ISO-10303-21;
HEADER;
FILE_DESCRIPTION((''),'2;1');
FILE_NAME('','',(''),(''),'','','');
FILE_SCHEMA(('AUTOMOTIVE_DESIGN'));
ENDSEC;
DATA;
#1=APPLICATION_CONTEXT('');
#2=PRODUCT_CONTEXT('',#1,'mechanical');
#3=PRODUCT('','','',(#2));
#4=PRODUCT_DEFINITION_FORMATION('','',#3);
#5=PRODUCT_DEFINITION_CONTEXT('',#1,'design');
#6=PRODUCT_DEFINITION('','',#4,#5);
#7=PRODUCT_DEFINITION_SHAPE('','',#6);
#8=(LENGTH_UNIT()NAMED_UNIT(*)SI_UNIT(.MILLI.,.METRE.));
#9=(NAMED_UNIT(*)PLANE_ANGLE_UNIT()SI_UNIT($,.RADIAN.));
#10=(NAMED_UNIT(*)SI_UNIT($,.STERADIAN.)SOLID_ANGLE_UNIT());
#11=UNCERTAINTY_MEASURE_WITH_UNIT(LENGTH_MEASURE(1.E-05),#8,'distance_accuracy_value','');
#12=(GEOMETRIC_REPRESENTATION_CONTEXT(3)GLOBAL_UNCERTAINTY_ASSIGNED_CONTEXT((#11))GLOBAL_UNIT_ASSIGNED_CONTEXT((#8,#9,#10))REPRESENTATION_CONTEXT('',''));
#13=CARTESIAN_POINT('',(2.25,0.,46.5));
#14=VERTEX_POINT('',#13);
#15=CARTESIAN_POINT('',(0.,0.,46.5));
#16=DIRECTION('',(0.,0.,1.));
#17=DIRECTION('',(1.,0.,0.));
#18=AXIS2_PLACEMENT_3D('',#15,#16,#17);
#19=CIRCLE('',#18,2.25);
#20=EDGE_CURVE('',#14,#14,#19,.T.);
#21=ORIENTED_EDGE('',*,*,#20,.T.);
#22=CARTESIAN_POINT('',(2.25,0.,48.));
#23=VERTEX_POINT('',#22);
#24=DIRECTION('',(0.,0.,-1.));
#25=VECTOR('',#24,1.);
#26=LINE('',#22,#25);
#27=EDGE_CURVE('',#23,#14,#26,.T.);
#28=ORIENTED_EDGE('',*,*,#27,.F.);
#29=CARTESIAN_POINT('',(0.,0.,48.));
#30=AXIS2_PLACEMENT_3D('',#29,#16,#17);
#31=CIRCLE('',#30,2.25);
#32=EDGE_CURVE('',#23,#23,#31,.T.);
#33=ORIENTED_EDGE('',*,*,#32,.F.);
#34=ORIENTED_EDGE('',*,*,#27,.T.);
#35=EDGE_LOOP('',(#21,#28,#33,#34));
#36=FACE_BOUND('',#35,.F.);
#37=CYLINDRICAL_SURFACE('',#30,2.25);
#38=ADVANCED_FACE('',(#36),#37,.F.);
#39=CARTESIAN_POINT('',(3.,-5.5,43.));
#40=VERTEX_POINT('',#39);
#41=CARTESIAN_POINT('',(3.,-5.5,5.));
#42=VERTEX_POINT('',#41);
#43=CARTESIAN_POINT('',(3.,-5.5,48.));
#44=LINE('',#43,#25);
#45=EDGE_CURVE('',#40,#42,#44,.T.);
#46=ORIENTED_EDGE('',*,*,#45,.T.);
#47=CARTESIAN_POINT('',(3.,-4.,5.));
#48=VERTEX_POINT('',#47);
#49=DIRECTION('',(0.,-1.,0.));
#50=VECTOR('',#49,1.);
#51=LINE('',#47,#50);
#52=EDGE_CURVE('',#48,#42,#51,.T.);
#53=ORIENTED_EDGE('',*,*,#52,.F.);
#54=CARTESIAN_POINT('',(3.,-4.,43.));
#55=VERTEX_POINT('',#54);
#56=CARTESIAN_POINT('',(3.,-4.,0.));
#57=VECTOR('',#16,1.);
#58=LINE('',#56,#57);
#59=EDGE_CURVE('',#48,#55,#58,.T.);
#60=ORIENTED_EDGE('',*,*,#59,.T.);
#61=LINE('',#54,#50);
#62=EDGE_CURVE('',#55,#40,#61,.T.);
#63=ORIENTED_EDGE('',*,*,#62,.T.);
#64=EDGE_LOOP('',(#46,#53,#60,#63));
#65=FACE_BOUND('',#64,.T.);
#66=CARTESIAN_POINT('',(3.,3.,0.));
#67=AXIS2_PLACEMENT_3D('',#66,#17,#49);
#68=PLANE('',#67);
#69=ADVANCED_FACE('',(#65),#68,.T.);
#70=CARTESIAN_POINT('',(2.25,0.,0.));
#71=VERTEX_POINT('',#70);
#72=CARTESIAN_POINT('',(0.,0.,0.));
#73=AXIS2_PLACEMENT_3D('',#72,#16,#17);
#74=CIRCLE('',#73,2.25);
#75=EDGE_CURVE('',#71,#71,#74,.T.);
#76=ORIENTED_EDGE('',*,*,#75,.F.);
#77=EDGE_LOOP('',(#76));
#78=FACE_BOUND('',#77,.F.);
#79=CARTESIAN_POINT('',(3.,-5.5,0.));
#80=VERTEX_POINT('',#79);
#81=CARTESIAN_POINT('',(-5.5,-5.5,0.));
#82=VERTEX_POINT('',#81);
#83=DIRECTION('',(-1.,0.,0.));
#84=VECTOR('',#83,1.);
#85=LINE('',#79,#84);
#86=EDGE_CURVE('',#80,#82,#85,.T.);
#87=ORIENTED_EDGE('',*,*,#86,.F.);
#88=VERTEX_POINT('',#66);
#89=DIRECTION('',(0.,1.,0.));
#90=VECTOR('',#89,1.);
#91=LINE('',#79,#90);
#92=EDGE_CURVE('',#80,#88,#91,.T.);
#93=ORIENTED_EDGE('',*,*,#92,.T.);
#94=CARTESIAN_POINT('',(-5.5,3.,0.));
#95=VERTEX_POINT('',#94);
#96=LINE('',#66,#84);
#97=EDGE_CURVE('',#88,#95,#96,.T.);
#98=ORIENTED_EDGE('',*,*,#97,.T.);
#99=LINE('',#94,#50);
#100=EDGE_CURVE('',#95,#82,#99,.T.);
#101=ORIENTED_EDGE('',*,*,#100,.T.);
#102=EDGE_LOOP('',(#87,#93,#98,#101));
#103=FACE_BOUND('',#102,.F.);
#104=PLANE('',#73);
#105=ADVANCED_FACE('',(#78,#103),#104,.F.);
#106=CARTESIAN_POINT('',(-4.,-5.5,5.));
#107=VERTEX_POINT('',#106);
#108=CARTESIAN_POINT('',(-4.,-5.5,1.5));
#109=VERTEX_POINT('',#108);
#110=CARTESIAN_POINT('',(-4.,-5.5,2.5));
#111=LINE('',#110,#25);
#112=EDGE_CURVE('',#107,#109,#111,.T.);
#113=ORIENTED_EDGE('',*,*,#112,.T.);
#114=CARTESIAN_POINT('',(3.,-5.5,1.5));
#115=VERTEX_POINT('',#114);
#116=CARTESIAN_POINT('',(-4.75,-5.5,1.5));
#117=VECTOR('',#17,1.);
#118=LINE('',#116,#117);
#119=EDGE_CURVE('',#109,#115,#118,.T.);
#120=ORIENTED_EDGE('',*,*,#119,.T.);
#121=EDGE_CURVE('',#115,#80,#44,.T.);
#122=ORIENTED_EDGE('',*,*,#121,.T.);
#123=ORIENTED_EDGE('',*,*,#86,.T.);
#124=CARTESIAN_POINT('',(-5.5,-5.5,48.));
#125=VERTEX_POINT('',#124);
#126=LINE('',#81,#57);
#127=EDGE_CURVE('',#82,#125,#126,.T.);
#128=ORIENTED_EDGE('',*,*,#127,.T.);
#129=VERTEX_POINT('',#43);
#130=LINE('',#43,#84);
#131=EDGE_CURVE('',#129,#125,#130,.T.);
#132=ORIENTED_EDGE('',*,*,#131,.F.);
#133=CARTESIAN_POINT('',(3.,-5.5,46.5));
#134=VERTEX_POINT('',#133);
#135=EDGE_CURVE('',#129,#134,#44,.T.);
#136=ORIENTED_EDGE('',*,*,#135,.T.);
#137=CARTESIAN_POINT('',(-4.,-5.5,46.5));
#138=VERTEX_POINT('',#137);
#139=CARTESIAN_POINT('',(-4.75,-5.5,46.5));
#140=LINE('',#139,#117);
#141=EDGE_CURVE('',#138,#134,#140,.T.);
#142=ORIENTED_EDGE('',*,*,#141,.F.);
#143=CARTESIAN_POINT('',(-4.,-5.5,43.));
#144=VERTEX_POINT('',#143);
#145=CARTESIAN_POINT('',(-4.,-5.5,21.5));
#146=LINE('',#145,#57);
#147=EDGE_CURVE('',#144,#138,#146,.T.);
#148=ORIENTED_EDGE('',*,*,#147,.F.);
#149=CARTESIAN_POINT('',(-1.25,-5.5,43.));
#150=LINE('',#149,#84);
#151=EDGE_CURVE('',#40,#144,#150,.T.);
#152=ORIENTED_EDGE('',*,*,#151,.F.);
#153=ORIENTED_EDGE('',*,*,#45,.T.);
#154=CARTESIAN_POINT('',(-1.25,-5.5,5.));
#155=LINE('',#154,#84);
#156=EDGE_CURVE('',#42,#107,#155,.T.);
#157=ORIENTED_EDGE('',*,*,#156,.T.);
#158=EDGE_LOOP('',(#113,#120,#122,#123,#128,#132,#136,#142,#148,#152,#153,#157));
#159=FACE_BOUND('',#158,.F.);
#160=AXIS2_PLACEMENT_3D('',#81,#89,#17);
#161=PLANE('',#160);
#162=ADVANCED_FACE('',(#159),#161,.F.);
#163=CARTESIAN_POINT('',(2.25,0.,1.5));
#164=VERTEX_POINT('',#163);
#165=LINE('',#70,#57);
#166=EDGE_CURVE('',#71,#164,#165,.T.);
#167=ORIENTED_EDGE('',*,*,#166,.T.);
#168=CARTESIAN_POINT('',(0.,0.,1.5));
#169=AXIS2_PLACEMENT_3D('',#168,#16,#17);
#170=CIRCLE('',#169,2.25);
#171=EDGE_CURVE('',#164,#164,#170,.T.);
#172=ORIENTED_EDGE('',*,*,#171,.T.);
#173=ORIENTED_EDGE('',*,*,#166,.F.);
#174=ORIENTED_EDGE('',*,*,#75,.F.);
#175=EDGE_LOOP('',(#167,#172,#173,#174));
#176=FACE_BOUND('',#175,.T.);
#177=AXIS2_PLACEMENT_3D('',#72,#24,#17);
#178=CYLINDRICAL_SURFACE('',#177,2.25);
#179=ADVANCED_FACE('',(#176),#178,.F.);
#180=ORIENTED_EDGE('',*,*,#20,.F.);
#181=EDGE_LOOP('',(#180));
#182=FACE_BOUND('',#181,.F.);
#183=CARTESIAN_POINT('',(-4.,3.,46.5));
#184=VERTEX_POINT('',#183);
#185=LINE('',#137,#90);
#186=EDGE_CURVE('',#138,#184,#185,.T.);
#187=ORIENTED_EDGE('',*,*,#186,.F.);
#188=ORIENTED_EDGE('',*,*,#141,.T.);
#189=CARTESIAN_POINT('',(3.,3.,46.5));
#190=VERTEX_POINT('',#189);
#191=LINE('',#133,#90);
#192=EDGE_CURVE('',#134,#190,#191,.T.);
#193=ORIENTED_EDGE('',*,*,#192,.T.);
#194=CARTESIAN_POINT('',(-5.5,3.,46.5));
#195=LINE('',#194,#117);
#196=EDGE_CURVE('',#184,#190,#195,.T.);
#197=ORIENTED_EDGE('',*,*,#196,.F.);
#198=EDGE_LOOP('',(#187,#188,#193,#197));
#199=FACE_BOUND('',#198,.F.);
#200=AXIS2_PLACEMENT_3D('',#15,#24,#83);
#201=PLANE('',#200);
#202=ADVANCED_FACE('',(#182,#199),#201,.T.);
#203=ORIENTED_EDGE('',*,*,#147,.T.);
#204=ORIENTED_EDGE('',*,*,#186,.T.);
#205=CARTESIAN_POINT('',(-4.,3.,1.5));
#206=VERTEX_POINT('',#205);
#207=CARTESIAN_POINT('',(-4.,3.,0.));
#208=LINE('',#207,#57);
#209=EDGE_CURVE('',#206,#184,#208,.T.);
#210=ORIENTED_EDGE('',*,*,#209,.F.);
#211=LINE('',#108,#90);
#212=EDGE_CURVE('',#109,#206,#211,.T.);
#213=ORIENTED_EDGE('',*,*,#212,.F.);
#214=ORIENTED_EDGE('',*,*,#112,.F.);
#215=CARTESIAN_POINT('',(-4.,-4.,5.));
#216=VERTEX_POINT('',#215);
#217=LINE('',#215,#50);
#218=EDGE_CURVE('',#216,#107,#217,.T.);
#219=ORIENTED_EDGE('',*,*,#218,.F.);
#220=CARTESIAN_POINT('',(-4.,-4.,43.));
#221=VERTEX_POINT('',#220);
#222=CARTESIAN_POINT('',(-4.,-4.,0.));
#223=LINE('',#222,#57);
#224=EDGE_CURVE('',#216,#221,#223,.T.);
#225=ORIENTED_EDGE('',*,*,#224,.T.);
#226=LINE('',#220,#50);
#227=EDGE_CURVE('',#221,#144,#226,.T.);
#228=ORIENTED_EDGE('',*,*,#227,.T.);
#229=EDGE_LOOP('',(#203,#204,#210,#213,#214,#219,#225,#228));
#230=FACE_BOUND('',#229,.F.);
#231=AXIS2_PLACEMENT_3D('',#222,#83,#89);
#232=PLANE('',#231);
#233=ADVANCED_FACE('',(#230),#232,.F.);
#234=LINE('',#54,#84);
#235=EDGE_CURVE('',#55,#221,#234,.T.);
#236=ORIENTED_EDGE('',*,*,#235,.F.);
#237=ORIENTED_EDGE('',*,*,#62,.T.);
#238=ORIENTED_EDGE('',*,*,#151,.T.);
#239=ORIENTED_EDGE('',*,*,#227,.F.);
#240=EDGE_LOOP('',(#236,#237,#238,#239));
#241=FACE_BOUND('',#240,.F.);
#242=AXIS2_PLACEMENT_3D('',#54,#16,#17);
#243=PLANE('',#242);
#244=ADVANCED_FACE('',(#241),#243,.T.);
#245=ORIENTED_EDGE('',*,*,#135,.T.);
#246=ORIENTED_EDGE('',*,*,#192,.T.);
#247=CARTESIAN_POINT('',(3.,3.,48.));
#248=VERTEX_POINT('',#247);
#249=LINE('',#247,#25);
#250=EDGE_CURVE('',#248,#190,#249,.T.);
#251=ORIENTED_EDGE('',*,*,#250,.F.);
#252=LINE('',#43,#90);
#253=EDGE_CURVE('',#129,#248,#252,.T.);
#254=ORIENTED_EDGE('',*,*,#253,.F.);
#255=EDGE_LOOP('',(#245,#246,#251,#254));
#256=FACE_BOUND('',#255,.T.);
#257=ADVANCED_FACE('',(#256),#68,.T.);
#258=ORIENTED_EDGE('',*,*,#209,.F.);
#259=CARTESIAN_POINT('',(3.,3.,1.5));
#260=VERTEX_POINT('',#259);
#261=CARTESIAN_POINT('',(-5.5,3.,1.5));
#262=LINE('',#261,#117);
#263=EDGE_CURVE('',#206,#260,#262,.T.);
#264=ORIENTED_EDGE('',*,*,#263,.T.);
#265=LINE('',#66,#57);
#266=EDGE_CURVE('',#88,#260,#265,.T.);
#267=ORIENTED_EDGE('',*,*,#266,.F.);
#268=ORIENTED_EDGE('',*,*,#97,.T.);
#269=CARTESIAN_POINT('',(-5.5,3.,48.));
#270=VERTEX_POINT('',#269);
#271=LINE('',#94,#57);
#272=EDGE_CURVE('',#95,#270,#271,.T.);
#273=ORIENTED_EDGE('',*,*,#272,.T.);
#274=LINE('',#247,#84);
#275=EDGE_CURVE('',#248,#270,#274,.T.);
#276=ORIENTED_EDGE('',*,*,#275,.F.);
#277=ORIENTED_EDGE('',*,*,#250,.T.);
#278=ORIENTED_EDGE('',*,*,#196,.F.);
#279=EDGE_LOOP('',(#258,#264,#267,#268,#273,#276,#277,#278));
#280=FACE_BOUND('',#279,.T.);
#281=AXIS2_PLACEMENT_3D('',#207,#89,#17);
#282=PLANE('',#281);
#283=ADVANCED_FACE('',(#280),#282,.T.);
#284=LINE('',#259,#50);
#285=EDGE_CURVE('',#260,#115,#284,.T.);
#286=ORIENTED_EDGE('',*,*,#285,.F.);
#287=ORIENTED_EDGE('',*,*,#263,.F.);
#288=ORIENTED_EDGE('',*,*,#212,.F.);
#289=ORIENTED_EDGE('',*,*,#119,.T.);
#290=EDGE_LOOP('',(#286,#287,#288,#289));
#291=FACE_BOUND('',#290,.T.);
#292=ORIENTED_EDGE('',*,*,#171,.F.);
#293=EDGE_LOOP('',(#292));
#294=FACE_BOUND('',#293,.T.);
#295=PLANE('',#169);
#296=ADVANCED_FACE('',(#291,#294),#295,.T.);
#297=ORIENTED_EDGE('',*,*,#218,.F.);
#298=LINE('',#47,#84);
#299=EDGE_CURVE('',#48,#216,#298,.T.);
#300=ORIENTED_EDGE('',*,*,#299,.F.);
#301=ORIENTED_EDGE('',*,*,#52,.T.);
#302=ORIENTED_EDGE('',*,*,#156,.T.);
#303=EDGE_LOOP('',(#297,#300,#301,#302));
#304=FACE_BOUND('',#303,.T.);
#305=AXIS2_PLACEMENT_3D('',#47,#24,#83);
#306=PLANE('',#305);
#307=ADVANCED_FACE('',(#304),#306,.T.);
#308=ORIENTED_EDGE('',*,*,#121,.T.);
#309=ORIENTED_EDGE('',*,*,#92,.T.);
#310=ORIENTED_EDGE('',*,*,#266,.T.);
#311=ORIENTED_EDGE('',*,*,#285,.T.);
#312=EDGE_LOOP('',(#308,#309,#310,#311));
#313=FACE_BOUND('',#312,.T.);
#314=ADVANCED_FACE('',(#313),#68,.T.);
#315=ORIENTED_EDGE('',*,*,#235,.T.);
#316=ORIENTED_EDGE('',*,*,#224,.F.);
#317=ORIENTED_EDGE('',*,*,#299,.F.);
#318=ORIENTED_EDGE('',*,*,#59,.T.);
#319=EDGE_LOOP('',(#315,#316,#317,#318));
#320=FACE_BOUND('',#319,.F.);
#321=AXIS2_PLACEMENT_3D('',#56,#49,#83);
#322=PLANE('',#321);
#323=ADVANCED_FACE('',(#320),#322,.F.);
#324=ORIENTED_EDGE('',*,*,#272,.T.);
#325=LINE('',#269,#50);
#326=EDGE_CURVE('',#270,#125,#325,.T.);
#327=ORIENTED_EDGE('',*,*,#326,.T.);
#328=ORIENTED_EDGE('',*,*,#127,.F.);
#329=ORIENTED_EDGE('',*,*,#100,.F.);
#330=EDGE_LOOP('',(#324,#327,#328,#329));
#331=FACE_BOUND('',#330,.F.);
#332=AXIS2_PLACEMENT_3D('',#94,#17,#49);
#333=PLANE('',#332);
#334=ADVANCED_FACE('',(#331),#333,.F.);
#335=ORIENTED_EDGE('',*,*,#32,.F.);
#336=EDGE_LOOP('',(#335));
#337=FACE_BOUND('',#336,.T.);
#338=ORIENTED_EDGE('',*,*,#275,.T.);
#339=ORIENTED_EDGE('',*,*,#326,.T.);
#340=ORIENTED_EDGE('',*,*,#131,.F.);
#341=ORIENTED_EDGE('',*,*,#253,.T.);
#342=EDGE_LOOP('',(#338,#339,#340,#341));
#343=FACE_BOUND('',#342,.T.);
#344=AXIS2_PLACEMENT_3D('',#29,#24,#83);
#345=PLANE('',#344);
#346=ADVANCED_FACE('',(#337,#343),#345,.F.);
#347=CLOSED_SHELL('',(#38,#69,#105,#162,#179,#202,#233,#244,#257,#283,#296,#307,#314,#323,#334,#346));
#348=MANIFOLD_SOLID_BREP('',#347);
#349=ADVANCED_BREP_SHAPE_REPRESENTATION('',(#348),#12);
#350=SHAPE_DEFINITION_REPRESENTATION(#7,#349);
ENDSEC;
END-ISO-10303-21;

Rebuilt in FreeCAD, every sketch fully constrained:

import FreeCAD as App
import Part
import Sketcher

V = App.Vector
Q = App.Units.Quantity


def add_polygon(sketch, points):
    """Adds a closed chain of lines whose ends are joined by coincident constraints."""
    first, n = sketch.GeometryCount, len(points)
    for a, b in zip(points, points[1:] + points[:1]):
        sketch.addGeometry(Part.LineSegment(App.Vector(*a, 0), App.Vector(*b, 0)), False)
    for i in range(n):
        sketch.addConstraint(Sketcher.Constraint("Coincident", first + i, 2, first + (i + 1) % n, 1))

doc = App.newDocument("Part")
body = doc.addObject("PartDesign::Body", "Body")

sketch1 = body.newObject("Sketcher::SketchObject", "Sketch")
sketch1.AttachmentSupport = (doc.getObject("XY_Plane"), [""])
sketch1.MapMode = "FlatFace"
add_polygon(sketch1, [(3, 3), (-5.5, 3), (-5.5, -5.5), (3, -5.5)])
sketch1.addGeometry(Part.Circle(V(0, 0, 0), V(0, 0, 1), 2.25), False)
sketch1.addConstraint(Sketcher.Constraint("Horizontal", 0))
sketch1.addConstraint(Sketcher.Constraint("Vertical", 1))
sketch1.addConstraint(Sketcher.Constraint("Horizontal", 2))
sketch1.addConstraint(Sketcher.Constraint("Vertical", 3))
sketch1.addConstraint(Sketcher.Constraint("Coincident", 4, 3, -1, 1))
sketch1.addConstraint(Sketcher.Constraint("Equal", 2, 1))
sketch1.addConstraint(Sketcher.Constraint("Diameter", 4, Q("4.5 mm")))
sketch1.addConstraint(Sketcher.Constraint("DistanceY", -1, 1, 0, 2, Q("3 mm")))
sketch1.addConstraint(Sketcher.Constraint("DistanceX", -1, 1, 2, 2, Q("3 mm")))
sketch1.addConstraint(Sketcher.Constraint("DistanceX", 0, 2, 0, 1, Q("8.5 mm")))
pad1 = body.newObject("PartDesign::Pad", "Pad")
pad1.Profile = sketch1
pad1.Length = 1.5

sketch2 = body.newObject("Sketcher::SketchObject", "Sketch001")
sketch2.AttachmentSupport = (doc.getObject("XY_Plane"), [""])
sketch2.MapMode = "FlatFace"
add_polygon(sketch2, [(-4, -4), (-4, 3), (-5.5, 3), (-5.5, -5.5), (3, -5.5), (3, -4)])
sketch2.addConstraint(Sketcher.Constraint("Vertical", 0))
sketch2.addConstraint(Sketcher.Constraint("Horizontal", 1))
sketch2.addConstraint(Sketcher.Constraint("Vertical", 2))
sketch2.addConstraint(Sketcher.Constraint("Horizontal", 3))
sketch2.addConstraint(Sketcher.Constraint("Vertical", 4))
sketch2.addConstraint(Sketcher.Constraint("Horizontal", 5))
sketch2.addConstraint(Sketcher.Constraint("Equal", 5, 0))
sketch2.addConstraint(Sketcher.Constraint("Equal", 3, 2))
sketch2.addConstraint(Sketcher.Constraint("DistanceX", 1, 2, 1, 1, Q("1.5 mm")))
sketch2.addConstraint(Sketcher.Constraint("DistanceX", 0, 2, -1, 1, Q("4 mm")))
sketch2.addConstraint(Sketcher.Constraint("DistanceY", -1, 1, 0, 2, Q("3 mm")))
sketch2.addConstraint(Sketcher.Constraint("DistanceX", -1, 1, 3, 2, Q("3 mm")))
pad2 = body.newObject("PartDesign::Pad", "Pad001")
pad2.Profile = sketch2
pad2.Length = 46.5
doc.recompute()

datumplane = body.newObject("PartDesign::Plane", "DatumPlane")
datumplane.AttachmentSupport = (doc.getObject("XY_Plane"), [""])
datumplane.MapMode = "FlatFace"
datumplane.AttachmentOffset = App.Placement(V(0, 0, 24), App.Rotation())
mirrored = body.newObject("PartDesign::Mirrored", "Mirrored")
mirrored.Originals = [pad1]
mirrored.MirrorPlane = (datumplane, [""])
body.Tip = mirrored

sketch3 = body.newObject("Sketcher::SketchObject", "Sketch002")
sketch3.AttachmentSupport = (doc.getObject("XZ_Plane"), [""])
sketch3.MapMode = "FlatFace"
sketch3.AttachmentOffset = App.Placement(V(0, 0, 4), App.Rotation())
add_polygon(sketch3, [(3, 5), (3, 1.5), (-4, 1.5), (-4, 5)])
sketch3.addConstraint(Sketcher.Constraint("Vertical", 0))
sketch3.addConstraint(Sketcher.Constraint("Horizontal", 1))
sketch3.addConstraint(Sketcher.Constraint("Vertical", 2))
sketch3.addConstraint(Sketcher.Constraint("Horizontal", 3))
sketch3.addConstraint(Sketcher.Constraint("DistanceY", 0, 2, 0, 1, Q("3.5 mm")))
sketch3.addConstraint(Sketcher.Constraint("DistanceX", 1, 2, 1, 1, Q("7 mm")))
sketch3.addConstraint(Sketcher.Constraint("DistanceX", -1, 1, 0, 2, Q("3 mm")))
sketch3.addConstraint(Sketcher.Constraint("DistanceY", -1, 1, 2, 2, Q("5 mm")))
pocket1 = body.newObject("PartDesign::Pocket", "Pocket")
pocket1.Profile = sketch3
pocket1.Length = 10
pocket1.Reversed = True
doc.recompute()

datumplane2 = body.newObject("PartDesign::Plane", "DatumPlane001")
datumplane2.AttachmentSupport = (doc.getObject("XY_Plane"), [""])
datumplane2.MapMode = "FlatFace"
datumplane2.AttachmentOffset = App.Placement(V(0, 0, 24), App.Rotation())
mirrored2 = body.newObject("PartDesign::Mirrored", "Mirrored001")
mirrored2.Originals = [pocket1]
mirrored2.MirrorPlane = (datumplane2, [""])
body.Tip = mirrored2

doc.recompute()
